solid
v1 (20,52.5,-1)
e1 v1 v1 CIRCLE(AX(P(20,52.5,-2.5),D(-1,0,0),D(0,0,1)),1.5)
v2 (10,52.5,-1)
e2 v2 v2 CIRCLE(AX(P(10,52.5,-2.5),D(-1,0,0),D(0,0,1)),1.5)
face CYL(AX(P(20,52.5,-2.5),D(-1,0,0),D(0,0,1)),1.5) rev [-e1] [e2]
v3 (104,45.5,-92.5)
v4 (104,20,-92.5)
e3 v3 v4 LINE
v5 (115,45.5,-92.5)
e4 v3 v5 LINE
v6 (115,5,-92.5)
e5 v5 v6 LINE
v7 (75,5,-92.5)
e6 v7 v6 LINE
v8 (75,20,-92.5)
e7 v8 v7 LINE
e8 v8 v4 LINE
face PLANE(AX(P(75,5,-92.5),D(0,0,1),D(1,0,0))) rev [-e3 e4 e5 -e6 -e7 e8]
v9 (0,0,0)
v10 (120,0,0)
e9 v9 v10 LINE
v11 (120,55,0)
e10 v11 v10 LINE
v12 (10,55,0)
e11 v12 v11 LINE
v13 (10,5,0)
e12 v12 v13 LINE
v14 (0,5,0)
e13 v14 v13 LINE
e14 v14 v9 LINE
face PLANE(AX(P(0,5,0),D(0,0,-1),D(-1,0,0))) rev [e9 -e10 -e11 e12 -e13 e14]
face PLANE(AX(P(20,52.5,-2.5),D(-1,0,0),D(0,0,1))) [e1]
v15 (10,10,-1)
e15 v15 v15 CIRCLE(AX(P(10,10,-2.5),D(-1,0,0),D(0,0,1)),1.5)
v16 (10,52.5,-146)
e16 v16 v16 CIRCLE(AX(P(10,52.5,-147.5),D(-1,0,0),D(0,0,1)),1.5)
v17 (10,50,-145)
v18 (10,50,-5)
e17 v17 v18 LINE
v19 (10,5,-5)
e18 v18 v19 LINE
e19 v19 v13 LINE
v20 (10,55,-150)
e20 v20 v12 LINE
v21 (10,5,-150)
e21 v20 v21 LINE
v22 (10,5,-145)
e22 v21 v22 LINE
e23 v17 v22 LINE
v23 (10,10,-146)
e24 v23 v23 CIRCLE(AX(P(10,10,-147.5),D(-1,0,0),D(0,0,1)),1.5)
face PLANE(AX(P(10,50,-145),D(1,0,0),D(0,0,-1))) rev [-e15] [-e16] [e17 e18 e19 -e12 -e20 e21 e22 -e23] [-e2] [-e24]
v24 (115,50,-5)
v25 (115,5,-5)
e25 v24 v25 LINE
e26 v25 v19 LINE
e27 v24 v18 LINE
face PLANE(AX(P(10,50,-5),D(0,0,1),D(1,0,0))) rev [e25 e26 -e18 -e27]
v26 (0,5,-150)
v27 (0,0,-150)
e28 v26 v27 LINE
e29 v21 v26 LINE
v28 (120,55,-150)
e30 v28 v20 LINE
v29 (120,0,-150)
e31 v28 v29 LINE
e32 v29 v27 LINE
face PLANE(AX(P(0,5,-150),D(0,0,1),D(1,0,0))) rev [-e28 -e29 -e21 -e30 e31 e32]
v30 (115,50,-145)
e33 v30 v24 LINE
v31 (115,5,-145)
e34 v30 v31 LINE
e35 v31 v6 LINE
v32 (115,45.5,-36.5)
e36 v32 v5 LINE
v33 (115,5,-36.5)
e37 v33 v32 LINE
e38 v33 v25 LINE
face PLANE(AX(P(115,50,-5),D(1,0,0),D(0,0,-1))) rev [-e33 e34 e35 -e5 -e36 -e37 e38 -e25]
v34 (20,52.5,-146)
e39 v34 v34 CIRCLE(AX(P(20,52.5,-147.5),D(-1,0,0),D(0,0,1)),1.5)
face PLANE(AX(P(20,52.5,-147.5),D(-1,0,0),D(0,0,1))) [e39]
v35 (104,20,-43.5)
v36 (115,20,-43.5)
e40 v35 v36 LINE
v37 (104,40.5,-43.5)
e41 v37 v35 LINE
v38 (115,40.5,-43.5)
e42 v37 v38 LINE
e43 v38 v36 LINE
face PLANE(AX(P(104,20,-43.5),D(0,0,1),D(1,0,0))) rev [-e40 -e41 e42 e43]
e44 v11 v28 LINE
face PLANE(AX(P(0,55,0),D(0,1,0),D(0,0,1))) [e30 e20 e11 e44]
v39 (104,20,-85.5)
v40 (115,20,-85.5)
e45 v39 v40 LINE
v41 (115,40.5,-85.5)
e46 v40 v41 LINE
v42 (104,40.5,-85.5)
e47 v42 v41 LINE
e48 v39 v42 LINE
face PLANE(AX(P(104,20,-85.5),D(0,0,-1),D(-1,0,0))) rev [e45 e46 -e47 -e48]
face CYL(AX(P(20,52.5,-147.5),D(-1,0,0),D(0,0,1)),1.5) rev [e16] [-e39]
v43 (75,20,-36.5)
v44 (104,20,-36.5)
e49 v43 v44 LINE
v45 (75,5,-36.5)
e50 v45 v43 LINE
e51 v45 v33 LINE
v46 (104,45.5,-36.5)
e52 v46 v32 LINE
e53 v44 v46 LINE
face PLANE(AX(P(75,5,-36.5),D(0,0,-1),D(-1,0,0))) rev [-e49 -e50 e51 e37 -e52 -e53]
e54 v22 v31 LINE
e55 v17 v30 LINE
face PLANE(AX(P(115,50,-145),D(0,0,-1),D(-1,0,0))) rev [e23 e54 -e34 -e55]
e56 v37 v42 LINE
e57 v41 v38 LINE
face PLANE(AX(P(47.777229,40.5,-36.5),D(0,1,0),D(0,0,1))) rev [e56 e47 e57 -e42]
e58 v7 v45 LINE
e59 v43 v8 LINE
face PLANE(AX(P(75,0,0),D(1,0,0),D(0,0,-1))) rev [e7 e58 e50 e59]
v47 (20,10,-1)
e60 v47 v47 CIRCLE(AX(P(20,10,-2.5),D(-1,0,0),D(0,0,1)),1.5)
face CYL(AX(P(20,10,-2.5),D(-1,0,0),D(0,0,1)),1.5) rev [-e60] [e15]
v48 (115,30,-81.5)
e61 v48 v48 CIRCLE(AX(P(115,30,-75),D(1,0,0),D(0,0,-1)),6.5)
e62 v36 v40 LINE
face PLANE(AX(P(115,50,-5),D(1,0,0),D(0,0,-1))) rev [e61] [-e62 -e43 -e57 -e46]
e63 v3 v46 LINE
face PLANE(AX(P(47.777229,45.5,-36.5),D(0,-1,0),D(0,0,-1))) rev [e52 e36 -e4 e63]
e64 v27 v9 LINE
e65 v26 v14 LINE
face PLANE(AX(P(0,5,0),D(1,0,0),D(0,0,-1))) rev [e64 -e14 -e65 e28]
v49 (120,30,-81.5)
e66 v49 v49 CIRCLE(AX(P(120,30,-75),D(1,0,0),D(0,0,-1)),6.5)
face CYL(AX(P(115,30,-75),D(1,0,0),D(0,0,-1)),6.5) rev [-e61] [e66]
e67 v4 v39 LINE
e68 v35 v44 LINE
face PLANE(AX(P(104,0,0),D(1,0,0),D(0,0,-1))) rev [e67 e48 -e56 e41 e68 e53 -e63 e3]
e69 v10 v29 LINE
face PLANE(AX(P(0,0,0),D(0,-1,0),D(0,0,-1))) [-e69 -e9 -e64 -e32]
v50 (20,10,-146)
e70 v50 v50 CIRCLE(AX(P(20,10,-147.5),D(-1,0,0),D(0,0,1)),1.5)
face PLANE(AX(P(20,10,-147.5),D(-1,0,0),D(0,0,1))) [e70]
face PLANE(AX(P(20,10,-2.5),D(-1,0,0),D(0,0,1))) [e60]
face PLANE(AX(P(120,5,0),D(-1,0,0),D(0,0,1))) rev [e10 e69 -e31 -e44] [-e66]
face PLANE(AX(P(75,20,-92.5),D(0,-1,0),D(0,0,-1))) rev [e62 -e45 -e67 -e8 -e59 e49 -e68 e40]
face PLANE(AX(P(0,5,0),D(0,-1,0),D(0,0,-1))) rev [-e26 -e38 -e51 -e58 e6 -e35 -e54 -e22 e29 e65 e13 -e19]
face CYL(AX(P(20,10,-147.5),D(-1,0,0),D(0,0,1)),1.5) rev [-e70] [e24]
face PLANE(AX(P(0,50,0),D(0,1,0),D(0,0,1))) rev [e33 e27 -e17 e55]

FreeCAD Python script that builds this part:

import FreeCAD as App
import Part
import Sketcher
from FreeCAD import Vector

doc = App.newDocument("Part")
body = doc.addObject("PartDesign::Body", "Body")

# Sketch on XZ plane
sketch1 = doc.addObject("Sketcher::SketchObject", "Sketch")
body.addObject(sketch1)
sketch1.AttachmentSupport = (doc.XZ_Plane, [""])
sketch1.MapMode = "FlatFace"
sketch1.addGeometry([
    Part.LineSegment(Vector(0, -150, 0), Vector(0, 0, 0)),
    Part.LineSegment(Vector(0, 0, 0), Vector(120, 0, 0)),
    Part.LineSegment(Vector(120, 0, 0), Vector(120, -150, 0)),
    Part.LineSegment(Vector(120, -150, 0), Vector(0, -150, 0)),
], False)
sketch1.addConstraint([
    Sketcher.Constraint("Coincident", 0, 2, 1, 1),
    Sketcher.Constraint("Coincident", 1, 2, 2, 1),
    Sketcher.Constraint("Coincident", 2, 2, 3, 1),
    Sketcher.Constraint("Coincident", 3, 2, 0, 1),
    Sketcher.Constraint("Vertical", 0),
    Sketcher.Constraint("Horizontal", 1),
    Sketcher.Constraint("Vertical", 2),
    Sketcher.Constraint("Horizontal", 3),
    Sketcher.Constraint("Coincident", 0, 2, -1, 1),
    Sketcher.Constraint("DistanceX", 1, 1, 1, 2, 120.0),
    Sketcher.Constraint("DistanceY", 0, 1, 0, 2, 150.0),
])
pad1 = doc.addObject("PartDesign::Pad", "Pad")
body.addObject(pad1)
pad1.Profile = sketch1
pad1.Length = 5
pad1.Reversed = True

# Sketch on XZ plane
sketch2 = doc.addObject("Sketcher::SketchObject", "Sketch001")
body.addObject(sketch2)
sketch2.AttachmentSupport = (doc.XZ_Plane, [""])
sketch2.MapMode = "FlatFace"
sketch2.AttachmentOffset = App.Placement(Vector(0, 0, -5), App.Rotation())
sketch2.addGeometry([
    Part.LineSegment(Vector(10, -5, 0), Vector(10, 0, 0)),  # 0
    Part.LineSegment(Vector(10, 0, 0), Vector(120, 0, 0)),  # 1
    Part.LineSegment(Vector(120, 0, 0), Vector(120, -150, 0)),  # 2
    Part.LineSegment(Vector(120, -150, 0), Vector(10, -150, 0)),  # 3
    Part.LineSegment(Vector(10, -150, 0), Vector(10, -145, 0)),  # 4
    Part.LineSegment(Vector(10, -145, 0), Vector(115, -145, 0)),  # 5
    Part.LineSegment(Vector(115, -145, 0), Vector(115, -5, 0)),  # 6
    Part.LineSegment(Vector(115, -5, 0), Vector(10, -5, 0)),  # 7
], False)
sketch2.addConstraint([
    Sketcher.Constraint("Coincident", 0, 2, 1, 1),
    Sketcher.Constraint("Coincident", 1, 2, 2, 1),
    Sketcher.Constraint("Coincident", 2, 2, 3, 1),
    Sketcher.Constraint("Coincident", 3, 2, 4, 1),
    Sketcher.Constraint("Coincident", 4, 2, 5, 1),
    Sketcher.Constraint("Coincident", 5, 2, 6, 1),
    Sketcher.Constraint("Coincident", 6, 2, 7, 1),
    Sketcher.Constraint("Coincident", 7, 2, 0, 1),
    Sketcher.Constraint("Vertical", 0),
    Sketcher.Constraint("Horizontal", 1),
    Sketcher.Constraint("Vertical", 2),
    Sketcher.Constraint("Horizontal", 3),
    Sketcher.Constraint("Vertical", 4),
    Sketcher.Constraint("Horizontal", 5),
    Sketcher.Constraint("Vertical", 6),
    Sketcher.Constraint("Horizontal", 7),
    Sketcher.Constraint("PointOnObject", 0, 2, -1),
    Sketcher.Constraint("Vertical", 0, 2, 3, 2),
    Sketcher.Constraint("Equal", 0, 4),
    Sketcher.Constraint("DistanceX", 1, 1, 1, 2, 110.0),
    Sketcher.Constraint("DistanceX", 5, 1, 5, 2, 105.0),
    Sketcher.Constraint("DistanceY", 0, 1, 0, 2, 5.0),
    Sketcher.Constraint("DistanceY", 2, 2, 2, 1, 150.0),
    Sketcher.Constraint("DistanceX", -1, 1, 0, 2, 10.0),
])
pad2 = doc.addObject("PartDesign::Pad", "Pad001")
body.addObject(pad2)
pad2.Profile = sketch2
pad2.Length = 45
pad2.Reversed = True

# Sketch on XZ plane
sketch3 = doc.addObject("Sketcher::SketchObject", "Sketch002")
body.addObject(sketch3)
sketch3.AttachmentSupport = (doc.XZ_Plane, [""])
sketch3.MapMode = "FlatFace"
sketch3.AttachmentOffset = App.Placement(Vector(0, 0, -50), App.Rotation())
sketch3.addGeometry([
    Part.LineSegment(Vector(10, -150, 0), Vector(10, 0, 0)),
    Part.LineSegment(Vector(10, 0, 0), Vector(120, 0, 0)),
    Part.LineSegment(Vector(120, 0, 0), Vector(120, -150, 0)),
    Part.LineSegment(Vector(120, -150, 0), Vector(10, -150, 0)),
], False)
sketch3.addConstraint([
    Sketcher.Constraint("Coincident", 0, 2, 1, 1),
    Sketcher.Constraint("Coincident", 1, 2, 2, 1),
    Sketcher.Constraint("Coincident", 2, 2, 3, 1),
    Sketcher.Constraint("Coincident", 3, 2, 0, 1),
    Sketcher.Constraint("Vertical", 0),
    Sketcher.Constraint("Horizontal", 1),
    Sketcher.Constraint("Vertical", 2),
    Sketcher.Constraint("Horizontal", 3),
    Sketcher.Constraint("PointOnObject", 0, 2, -1),
    Sketcher.Constraint("DistanceX", 1, 1, 1, 2, 110.0),
    Sketcher.Constraint("DistanceY", 0, 1, 0, 2, 150.0),
    Sketcher.Constraint("DistanceX", -1, 1, 0, 2, 10.0),
])
pad3 = doc.addObject("PartDesign::Pad", "Pad002")
body.addObject(pad3)
pad3.Profile = sketch3
pad3.Length = 5
pad3.Reversed = True

# Sketch on YZ plane
sketch4 = doc.addObject("Sketcher::SketchObject", "Sketch003")
body.addObject(sketch4)
sketch4.AttachmentSupport = (doc.YZ_Plane, [""])
sketch4.MapMode = "FlatFace"
sketch4.AttachmentOffset = App.Placement(Vector(0, 0, 120), App.Rotation())
sketch4.addGeometry(Part.Circle(Vector(30, -75, 0), Vector(0, 0, 1), 6.5), False)
sketch4.addConstraint([
    Sketcher.Constraint("Diameter", 0, 13.0),
    Sketcher.Constraint("DistanceX", -1, 1, 0, 3, 30.0),
    Sketcher.Constraint("DistanceY", 0, 3, -1, 1, 75.0),
])
pocket1 = doc.addObject("PartDesign::Pocket", "Pocket")
body.addObject(pocket1)
pocket1.Profile = sketch4
pocket1.Length = 5

# Sketch on XZ plane
sketch5 = doc.addObject("Sketcher::SketchObject", "Sketch004")
body.addObject(sketch5)
sketch5.AttachmentSupport = (doc.XZ_Plane, [""])
sketch5.MapMode = "FlatFace"
sketch5.AttachmentOffset = App.Placement(Vector(0, 0, -5), App.Rotation())
sketch5.addGeometry([
    Part.LineSegment(Vector(75, -145, 0), Vector(75, -5, 0)),
    Part.LineSegment(Vector(75, -5, 0), Vector(115, -5, 0)),
    Part.LineSegment(Vector(115, -5, 0), Vector(115, -145, 0)),
    Part.LineSegment(Vector(115, -145, 0), Vector(75, -145, 0)),
], False)
sketch5.addConstraint([
    Sketcher.Constraint("Coincident", 0, 2, 1, 1),
    Sketcher.Constraint("Coincident", 1, 2, 2, 1),
    Sketcher.Constraint("Coincident", 2, 2, 3, 1),
    Sketcher.Constraint("Coincident", 3, 2, 0, 1),
    Sketcher.Constraint("Vertical", 0),
    Sketcher.Constraint("Horizontal", 1),
    Sketcher.Constraint("Vertical", 2),
    Sketcher.Constraint("Horizontal", 3),
    Sketcher.Constraint("DistanceX", 1, 1, 1, 2, 40.0),
    Sketcher.Constraint("DistanceY", 0, 1, 0, 2, 140.0),
    Sketcher.Constraint("DistanceX", -1, 1, 0, 2, 75.0),
    Sketcher.Constraint("DistanceY", 0, 2, -1, 1, 5.0),
])
pad4 = doc.addObject("PartDesign::Pad", "Pad003")
body.addObject(pad4)
pad4.Profile = sketch5
pad4.Length = 8
pad4.Reversed = True

# Sketch on XZ plane
sketch6 = doc.addObject("Sketcher::SketchObject", "Sketch005")
body.addObject(sketch6)
sketch6.AttachmentSupport = (doc.XZ_Plane, [""])
sketch6.MapMode = "FlatFace"
sketch6.AttachmentOffset = App.Placement(Vector(0, 0, -13), App.Rotation())
sketch6.addGeometry([
    Part.LineSegment(Vector(75, -57.5, 0), Vector(75, -52.5, 0)),  # 0
    Part.LineSegment(Vector(75, -52.5, 0), Vector(115, -52.5, 0)),  # 1
    Part.LineSegment(Vector(115, -52.5, 0), Vector(115, -57.5, 0)),  # 2
    Part.LineSegment(Vector(115, -57.5, 0), Vector(75, -57.5, 0)),  # 3
    Part.LineSegment(Vector(75, -97.5, 0), Vector(75, -92.5, 0)),  # 4
    Part.LineSegment(Vector(75, -92.5, 0), Vector(115, -92.5, 0)),  # 5
    Part.LineSegment(Vector(115, -92.5, 0), Vector(115, -97.5, 0)),  # 6
    Part.LineSegment(Vector(115, -97.5, 0), Vector(75, -97.5, 0)),  # 7
], False)
sketch6.addConstraint([
    Sketcher.Constraint("Coincident", 0, 2, 1, 1),
    Sketcher.Constraint("Coincident", 1, 2, 2, 1),
    Sketcher.Constraint("Coincident", 2, 2, 3, 1),
    Sketcher.Constraint("Coincident", 3, 2, 0, 1),
    Sketcher.Constraint("Coincident", 4, 2, 5, 1),
    Sketcher.Constraint("Coincident", 5, 2, 6, 1),
    Sketcher.Constraint("Coincident", 6, 2, 7, 1),
    Sketcher.Constraint("Coincident", 7, 2, 4, 1),
    Sketcher.Constraint("Vertical", 0),
    Sketcher.Constraint("Horizontal", 1),
    Sketcher.Constraint("Vertical", 2),
    Sketcher.Constraint("Horizontal", 3),
    Sketcher.Constraint("Vertical", 4),
    Sketcher.Constraint("Horizontal", 5),
    Sketcher.Constraint("Vertical", 6),
    Sketcher.Constraint("Horizontal", 7),
    Sketcher.Constraint("Vertical", 3, 2, 4, 2),
    Sketcher.Constraint("Vertical", 2, 2, 5, 2),
    Sketcher.Constraint("Equal", 2, 4),
    Sketcher.Constraint("DistanceX", 1, 1, 1, 2, 40.0),
    Sketcher.Constraint("DistanceY", 0, 1, 0, 2, 5.0),
    Sketcher.Constraint("DistanceX", -1, 1, 0, 2, 75.0),
    Sketcher.Constraint("DistanceY", 4, 2, 3, 2, 35.0),
    Sketcher.Constraint("DistanceY", 0, 2, -1, 1, 52.5),
])
pad5 = doc.addObject("PartDesign::Pad", "Pad004")
body.addObject(pad5)
pad5.Profile = sketch6
pad5.Length = 25.5
pad5.Reversed = True

# Sketch on YZ plane
sketch7 = doc.addObject("Sketcher::SketchObject", "Sketch006")
body.addObject(sketch7)
sketch7.AttachmentSupport = (doc.YZ_Plane, [""])
sketch7.MapMode = "FlatFace"
sketch7.AttachmentOffset = App.Placement(Vector(0, 0, 10), App.Rotation())
sketch7.addGeometry([
    Part.Circle(Vector(10, -147.5, 0), Vector(0, 0, 1), 1.5),
    Part.Circle(Vector(52.5, -147.5, 0), Vector(0, 0, 1), 1.5),
    Part.Circle(Vector(10, -2.5, 0), Vector(0, 0, 1), 1.5),
    Part.Circle(Vector(52.5, -2.5, 0), Vector(0, 0, 1), 1.5),
], False)
sketch7.addConstraint([
    Sketcher.Constraint("Equal", 0, 1),
    Sketcher.Constraint("Equal", 1, 2),
    Sketcher.Constraint("Equal", 2, 3),
    Sketcher.Constraint("Horizontal", 0, 3, 1, 3),
    Sketcher.Constraint("Horizontal", 2, 3, 3, 3),
    Sketcher.Constraint("Vertical", 0, 3, 2, 3),
    Sketcher.Constraint("Vertical", 1, 3, 3, 3),
    Sketcher.Constraint("Diameter", 0, 3.0),
    Sketcher.Constraint("DistanceX", -1, 1, 0, 3, 10.0),
    Sketcher.Constraint("DistanceY", 0, 3, 2, 3, 145.0),
    Sketcher.Constraint("DistanceY", 0, 3, -1, 1, 147.5),
    Sketcher.Constraint("DistanceX", -1, 1, 1, 3, 52.5),
])
pocket2 = doc.addObject("PartDesign::Pocket", "Pocket001")
body.addObject(pocket2)
pocket2.Profile = sketch7
pocket2.Length = 10
pocket2.Reversed = True

# Sketch on YZ plane
sketch8 = doc.addObject("Sketcher::SketchObject", "Sketch007")
body.addObject(sketch8)
sketch8.AttachmentSupport = (doc.YZ_Plane, [""])
sketch8.MapMode = "FlatFace"
sketch8.AttachmentOffset = App.Placement(Vector(0, 0, 75), App.Rotation())
sketch8.addGeometry([
    Part.LineSegment(Vector(13, -145, 0), Vector(5, -145, 0)),  # 0
    Part.LineSegment(Vector(5, -145, 0), Vector(5, -97.5, 0)),  # 1
    Part.LineSegment(Vector(5, -97.5, 0), Vector(13, -97.5, 0)),  # 2
    Part.LineSegment(Vector(13, -97.5, 0), Vector(13, -145, 0)),  # 3
    Part.LineSegment(Vector(13, -52.5, 0), Vector(5, -52.5, 0)),  # 4
    Part.LineSegment(Vector(5, -52.5, 0), Vector(5, -5, 0)),  # 5
    Part.LineSegment(Vector(5, -5, 0), Vector(13, -5, 0)),  # 6
    Part.LineSegment(Vector(13, -5, 0), Vector(13, -52.5, 0)),  # 7
], False)
sketch8.addConstraint([
    Sketcher.Constraint("Coincident", 0, 2, 1, 1),
    Sketcher.Constraint("Coincident", 1, 2, 2, 1),
    Sketcher.Constraint("Coincident", 2, 2, 3, 1),
    Sketcher.Constraint("Coincident", 3, 2, 0, 1),
    Sketcher.Constraint("Coincident", 4, 2, 5, 1),
    Sketcher.Constraint("Coincident", 5, 2, 6, 1),
    Sketcher.Constraint("Coincident", 6, 2, 7, 1),
    Sketcher.Constraint("Coincident", 7, 2, 4, 1),
    Sketcher.Constraint("Horizontal", 0),
    Sketcher.Constraint("Vertical", 1),
    Sketcher.Constraint("Horizontal", 2),
    Sketcher.Constraint("Vertical", 3),
    Sketcher.Constraint("Horizontal", 4),
    Sketcher.Constraint("Vertical", 5),
    Sketcher.Constraint("Horizontal", 6),
    Sketcher.Constraint("Vertical", 7),
    Sketcher.Constraint("Vertical", 1, 2, 4, 2),
    Sketcher.Constraint("Vertical", 3, 2, 6, 2),
    Sketcher.Constraint("Equal", 3, 5),
    Sketcher.Constraint("DistanceX", 0, 2, 0, 1, 8.0),
    Sketcher.Constraint("DistanceY", 1, 1, 1, 2, 47.5),
    Sketcher.Constraint("DistanceX", -1, 1, 0, 2, 5.0),
    Sketcher.Constraint("DistanceY", 0, 2, -1, 1, 145.0),
    Sketcher.Constraint("DistanceY", 5, 2, -1, 1, 5.0),
])
pocket3 = doc.addObject("PartDesign::Pocket", "Pocket002")
body.addObject(pocket3)
pocket3.Profile = sketch8
pocket3.Length = 40
pocket3.Reversed = True

# Sketch on YZ plane
sketch9 = doc.addObject("Sketcher::SketchObject", "Sketch008")
body.addObject(sketch9)
sketch9.AttachmentSupport = (doc.YZ_Plane, [""])
sketch9.MapMode = "FlatFace"
sketch9.AttachmentOffset = App.Placement(Vector(0, 0, 75), App.Rotation())
sketch9.addGeometry([
    Part.LineSegment(Vector(38.5, -97.5, 0), Vector(5, -97.5, 0)),
    Part.LineSegment(Vector(5, -97.5, 0), Vector(5, -52.5, 0)),
    Part.LineSegment(Vector(5, -52.5, 0), Vector(38.5, -52.5, 0)),
    Part.LineSegment(Vector(38.5, -52.5, 0), Vector(38.5, -97.5, 0)),
], False)
sketch9.addConstraint([
    Sketcher.Constraint("Coincident", 0, 2, 1, 1),
    Sketcher.Constraint("Coincident", 1, 2, 2, 1),
    Sketcher.Constraint("Coincident", 2, 2, 3, 1),
    Sketcher.Constraint("Coincident", 3, 2, 0, 1),
    Sketcher.Constraint("Horizontal", 0),
    Sketcher.Constraint("Vertical", 1),
    Sketcher.Constraint("Horizontal", 2),
    Sketcher.Constraint("Vertical", 3),
    Sketcher.Constraint("DistanceY", 1, 1, 1, 2, 45.0),
    Sketcher.Constraint("DistanceX", 0, 2, 0, 1, 33.5),
    Sketcher.Constraint("DistanceX", -1, 1, 0, 2, 5.0),
    Sketcher.Constraint("DistanceY", 0, 2, -1, 1, 97.5),
])
pocket4 = doc.addObject("PartDesign::Pocket", "Pocket003")
body.addObject(pocket4)
pocket4.Profile = sketch9
pocket4.Length = 40
pocket4.Reversed = True

# Sketch on YZ plane
sketch10 = doc.addObject("Sketcher::SketchObject", "Sketch009")
body.addObject(sketch10)
sketch10.AttachmentSupport = (doc.YZ_Plane, [""])
sketch10.MapMode = "FlatFace"
sketch10.AttachmentOffset = App.Placement(Vector(0, 0, 115), App.Rotation())
sketch10.addGeometry([
    Part.LineSegment(Vector(20, -92.5, 0), Vector(5, -92.5, 0)),
    Part.LineSegment(Vector(5, -92.5, 0), Vector(5, -36.5, 0)),
    Part.LineSegment(Vector(5, -36.5, 0), Vector(20, -36.5, 0)),
    Part.LineSegment(Vector(20, -36.5, 0), Vector(20, -92.5, 0)),
], False)
sketch10.addConstraint([
    Sketcher.Constraint("Coincident", 0, 2, 1, 1),
    Sketcher.Constraint("Coincident", 1, 2, 2, 1),
    Sketcher.Constraint("Coincident", 2, 2, 3, 1),
    Sketcher.Constraint("Coincident", 3, 2, 0, 1),
    Sketcher.Constraint("Horizontal", 0),
    Sketcher.Constraint("Vertical", 1),
    Sketcher.Constraint("Horizontal", 2),
    Sketcher.Constraint("Vertical", 3),
    Sketcher.Constraint("DistanceX", 0, 2, 0, 1, 15.0),
    Sketcher.Constraint("DistanceY", 1, 1, 1, 2, 56.0),
    Sketcher.Constraint("DistanceX", -1, 1, 0, 2, 5.0),
    Sketcher.Constraint("DistanceY", 0, 2, -1, 1, 92.5),
])
pad6 = doc.addObject("PartDesign::Pad", "Pad005")
body.addObject(pad6)
pad6.Profile = sketch10
pad6.Length = 40
pad6.Reversed = True

# Sketch on YZ plane
sketch11 = doc.addObject("Sketcher::SketchObject", "Sketch010")
body.addObject(sketch11)
sketch11.AttachmentSupport = (doc.YZ_Plane, [""])
sketch11.MapMode = "FlatFace"
sketch11.AttachmentOffset = App.Placement(Vector(0, 0, 115), App.Rotation())
sketch11.addGeometry([
    Part.LineSegment(Vector(40.5, -92.5, 0), Vector(20, -92.5, 0)),  # 0
    Part.LineSegment(Vector(20, -92.5, 0), Vector(20, -85.5, 0)),  # 1
    Part.LineSegment(Vector(20, -85.5, 0), Vector(40.5, -85.5, 0)),  # 2
    Part.LineSegment(Vector(40.5, -85.5, 0), Vector(40.5, -92.5, 0)),  # 3
    Part.LineSegment(Vector(40.5, -43.5, 0), Vector(20, -43.5, 0)),  # 4
    Part.LineSegment(Vector(20, -43.5, 0), Vector(20, -36.5, 0)),  # 5
    Part.LineSegment(Vector(20, -36.5, 0), Vector(40.5, -36.5, 0)),  # 6
    Part.LineSegment(Vector(40.5, -36.5, 0), Vector(40.5, -43.5, 0)),  # 7
], False)
sketch11.addConstraint([
    Sketcher.Constraint("Coincident", 0, 2, 1, 1),
    Sketcher.Constraint("Coincident", 1, 2, 2, 1),
    Sketcher.Constraint("Coincident", 2, 2, 3, 1),
    Sketcher.Constraint("Coincident", 3, 2, 0, 1),
    Sketcher.Constraint("Coincident", 4, 2, 5, 1),
    Sketcher.Constraint("Coincident", 5, 2, 6, 1),
    Sketcher.Constraint("Coincident", 6, 2, 7, 1),
    Sketcher.Constraint("Coincident", 7, 2, 4, 1),
    Sketcher.Constraint("Horizontal", 0),
    Sketcher.Constraint("Vertical", 1),
    Sketcher.Constraint("Horizontal", 2),
    Sketcher.Constraint("Vertical", 3),
    Sketcher.Constraint("Horizontal", 4),
    Sketcher.Constraint("Vertical", 5),
    Sketcher.Constraint("Horizontal", 6),
    Sketcher.Constraint("Vertical", 7),
    Sketcher.Constraint("Vertical", 1, 2, 4, 2),
    Sketcher.Constraint("Vertical", 3, 2, 6, 2),
    Sketcher.Constraint("Equal", 3, 5),
    Sketcher.Constraint("DistanceY", 1, 1, 1, 2, 7.0),
    Sketcher.Constraint("DistanceX", 0, 2, 0, 1, 20.5),
    Sketcher.Constraint("DistanceX", -1, 1, 0, 2, 20.0),
    Sketcher.Constraint("DistanceY", 1, 2, 4, 2, 42.0),
    Sketcher.Constraint("DistanceY", 0, 2, -1, 1, 92.5),
])
pad7 = doc.addObject("PartDesign::Pad", "Pad006")
body.addObject(pad7)
pad7.Profile = sketch11
pad7.Length = 11
pad7.Reversed = True

# Sketch on YZ plane
sketch12 = doc.addObject("Sketcher::SketchObject", "Sketch011")
body.addObject(sketch12)
sketch12.AttachmentSupport = (doc.YZ_Plane, [""])
sketch12.MapMode = "FlatFace"
sketch12.AttachmentOffset = App.Placement(Vector(0, 0, 115), App.Rotation())
sketch12.addGeometry([
    Part.LineSegment(Vector(45.5, -92.5, 0), Vector(40.5, -92.5, 0)),
    Part.LineSegment(Vector(40.5, -92.5, 0), Vector(40.5, -36.5, 0)),
    Part.LineSegment(Vector(40.5, -36.5, 0), Vector(45.5, -36.5, 0)),
    Part.LineSegment(Vector(45.5, -36.5, 0), Vector(45.5, -92.5, 0)),
], False)
sketch12.addConstraint([
    Sketcher.Constraint("Coincident", 0, 2, 1, 1),
    Sketcher.Constraint("Coincident", 1, 2, 2, 1),
    Sketcher.Constraint("Coincident", 2, 2, 3, 1),
    Sketcher.Constraint("Coincident", 3, 2, 0, 1),
    Sketcher.Constraint("Horizontal", 0),
    Sketcher.Constraint("Vertical", 1),
    Sketcher.Constraint("Horizontal", 2),
    Sketcher.Constraint("Vertical", 3),
    Sketcher.Constraint("DistanceX", 0, 2, 0, 1, 5.0),
    Sketcher.Constraint("DistanceY", 1, 1, 1, 2, 56.0),
    Sketcher.Constraint("DistanceX", -1, 1, 0, 2, 40.5),
    Sketcher.Constraint("DistanceY", 0, 2, -1, 1, 92.5),
])
pad8 = doc.addObject("PartDesign::Pad", "Pad007")
body.addObject(pad8)
pad8.Profile = sketch12
pad8.Length = 11
pad8.Reversed = True

doc.recompute()
